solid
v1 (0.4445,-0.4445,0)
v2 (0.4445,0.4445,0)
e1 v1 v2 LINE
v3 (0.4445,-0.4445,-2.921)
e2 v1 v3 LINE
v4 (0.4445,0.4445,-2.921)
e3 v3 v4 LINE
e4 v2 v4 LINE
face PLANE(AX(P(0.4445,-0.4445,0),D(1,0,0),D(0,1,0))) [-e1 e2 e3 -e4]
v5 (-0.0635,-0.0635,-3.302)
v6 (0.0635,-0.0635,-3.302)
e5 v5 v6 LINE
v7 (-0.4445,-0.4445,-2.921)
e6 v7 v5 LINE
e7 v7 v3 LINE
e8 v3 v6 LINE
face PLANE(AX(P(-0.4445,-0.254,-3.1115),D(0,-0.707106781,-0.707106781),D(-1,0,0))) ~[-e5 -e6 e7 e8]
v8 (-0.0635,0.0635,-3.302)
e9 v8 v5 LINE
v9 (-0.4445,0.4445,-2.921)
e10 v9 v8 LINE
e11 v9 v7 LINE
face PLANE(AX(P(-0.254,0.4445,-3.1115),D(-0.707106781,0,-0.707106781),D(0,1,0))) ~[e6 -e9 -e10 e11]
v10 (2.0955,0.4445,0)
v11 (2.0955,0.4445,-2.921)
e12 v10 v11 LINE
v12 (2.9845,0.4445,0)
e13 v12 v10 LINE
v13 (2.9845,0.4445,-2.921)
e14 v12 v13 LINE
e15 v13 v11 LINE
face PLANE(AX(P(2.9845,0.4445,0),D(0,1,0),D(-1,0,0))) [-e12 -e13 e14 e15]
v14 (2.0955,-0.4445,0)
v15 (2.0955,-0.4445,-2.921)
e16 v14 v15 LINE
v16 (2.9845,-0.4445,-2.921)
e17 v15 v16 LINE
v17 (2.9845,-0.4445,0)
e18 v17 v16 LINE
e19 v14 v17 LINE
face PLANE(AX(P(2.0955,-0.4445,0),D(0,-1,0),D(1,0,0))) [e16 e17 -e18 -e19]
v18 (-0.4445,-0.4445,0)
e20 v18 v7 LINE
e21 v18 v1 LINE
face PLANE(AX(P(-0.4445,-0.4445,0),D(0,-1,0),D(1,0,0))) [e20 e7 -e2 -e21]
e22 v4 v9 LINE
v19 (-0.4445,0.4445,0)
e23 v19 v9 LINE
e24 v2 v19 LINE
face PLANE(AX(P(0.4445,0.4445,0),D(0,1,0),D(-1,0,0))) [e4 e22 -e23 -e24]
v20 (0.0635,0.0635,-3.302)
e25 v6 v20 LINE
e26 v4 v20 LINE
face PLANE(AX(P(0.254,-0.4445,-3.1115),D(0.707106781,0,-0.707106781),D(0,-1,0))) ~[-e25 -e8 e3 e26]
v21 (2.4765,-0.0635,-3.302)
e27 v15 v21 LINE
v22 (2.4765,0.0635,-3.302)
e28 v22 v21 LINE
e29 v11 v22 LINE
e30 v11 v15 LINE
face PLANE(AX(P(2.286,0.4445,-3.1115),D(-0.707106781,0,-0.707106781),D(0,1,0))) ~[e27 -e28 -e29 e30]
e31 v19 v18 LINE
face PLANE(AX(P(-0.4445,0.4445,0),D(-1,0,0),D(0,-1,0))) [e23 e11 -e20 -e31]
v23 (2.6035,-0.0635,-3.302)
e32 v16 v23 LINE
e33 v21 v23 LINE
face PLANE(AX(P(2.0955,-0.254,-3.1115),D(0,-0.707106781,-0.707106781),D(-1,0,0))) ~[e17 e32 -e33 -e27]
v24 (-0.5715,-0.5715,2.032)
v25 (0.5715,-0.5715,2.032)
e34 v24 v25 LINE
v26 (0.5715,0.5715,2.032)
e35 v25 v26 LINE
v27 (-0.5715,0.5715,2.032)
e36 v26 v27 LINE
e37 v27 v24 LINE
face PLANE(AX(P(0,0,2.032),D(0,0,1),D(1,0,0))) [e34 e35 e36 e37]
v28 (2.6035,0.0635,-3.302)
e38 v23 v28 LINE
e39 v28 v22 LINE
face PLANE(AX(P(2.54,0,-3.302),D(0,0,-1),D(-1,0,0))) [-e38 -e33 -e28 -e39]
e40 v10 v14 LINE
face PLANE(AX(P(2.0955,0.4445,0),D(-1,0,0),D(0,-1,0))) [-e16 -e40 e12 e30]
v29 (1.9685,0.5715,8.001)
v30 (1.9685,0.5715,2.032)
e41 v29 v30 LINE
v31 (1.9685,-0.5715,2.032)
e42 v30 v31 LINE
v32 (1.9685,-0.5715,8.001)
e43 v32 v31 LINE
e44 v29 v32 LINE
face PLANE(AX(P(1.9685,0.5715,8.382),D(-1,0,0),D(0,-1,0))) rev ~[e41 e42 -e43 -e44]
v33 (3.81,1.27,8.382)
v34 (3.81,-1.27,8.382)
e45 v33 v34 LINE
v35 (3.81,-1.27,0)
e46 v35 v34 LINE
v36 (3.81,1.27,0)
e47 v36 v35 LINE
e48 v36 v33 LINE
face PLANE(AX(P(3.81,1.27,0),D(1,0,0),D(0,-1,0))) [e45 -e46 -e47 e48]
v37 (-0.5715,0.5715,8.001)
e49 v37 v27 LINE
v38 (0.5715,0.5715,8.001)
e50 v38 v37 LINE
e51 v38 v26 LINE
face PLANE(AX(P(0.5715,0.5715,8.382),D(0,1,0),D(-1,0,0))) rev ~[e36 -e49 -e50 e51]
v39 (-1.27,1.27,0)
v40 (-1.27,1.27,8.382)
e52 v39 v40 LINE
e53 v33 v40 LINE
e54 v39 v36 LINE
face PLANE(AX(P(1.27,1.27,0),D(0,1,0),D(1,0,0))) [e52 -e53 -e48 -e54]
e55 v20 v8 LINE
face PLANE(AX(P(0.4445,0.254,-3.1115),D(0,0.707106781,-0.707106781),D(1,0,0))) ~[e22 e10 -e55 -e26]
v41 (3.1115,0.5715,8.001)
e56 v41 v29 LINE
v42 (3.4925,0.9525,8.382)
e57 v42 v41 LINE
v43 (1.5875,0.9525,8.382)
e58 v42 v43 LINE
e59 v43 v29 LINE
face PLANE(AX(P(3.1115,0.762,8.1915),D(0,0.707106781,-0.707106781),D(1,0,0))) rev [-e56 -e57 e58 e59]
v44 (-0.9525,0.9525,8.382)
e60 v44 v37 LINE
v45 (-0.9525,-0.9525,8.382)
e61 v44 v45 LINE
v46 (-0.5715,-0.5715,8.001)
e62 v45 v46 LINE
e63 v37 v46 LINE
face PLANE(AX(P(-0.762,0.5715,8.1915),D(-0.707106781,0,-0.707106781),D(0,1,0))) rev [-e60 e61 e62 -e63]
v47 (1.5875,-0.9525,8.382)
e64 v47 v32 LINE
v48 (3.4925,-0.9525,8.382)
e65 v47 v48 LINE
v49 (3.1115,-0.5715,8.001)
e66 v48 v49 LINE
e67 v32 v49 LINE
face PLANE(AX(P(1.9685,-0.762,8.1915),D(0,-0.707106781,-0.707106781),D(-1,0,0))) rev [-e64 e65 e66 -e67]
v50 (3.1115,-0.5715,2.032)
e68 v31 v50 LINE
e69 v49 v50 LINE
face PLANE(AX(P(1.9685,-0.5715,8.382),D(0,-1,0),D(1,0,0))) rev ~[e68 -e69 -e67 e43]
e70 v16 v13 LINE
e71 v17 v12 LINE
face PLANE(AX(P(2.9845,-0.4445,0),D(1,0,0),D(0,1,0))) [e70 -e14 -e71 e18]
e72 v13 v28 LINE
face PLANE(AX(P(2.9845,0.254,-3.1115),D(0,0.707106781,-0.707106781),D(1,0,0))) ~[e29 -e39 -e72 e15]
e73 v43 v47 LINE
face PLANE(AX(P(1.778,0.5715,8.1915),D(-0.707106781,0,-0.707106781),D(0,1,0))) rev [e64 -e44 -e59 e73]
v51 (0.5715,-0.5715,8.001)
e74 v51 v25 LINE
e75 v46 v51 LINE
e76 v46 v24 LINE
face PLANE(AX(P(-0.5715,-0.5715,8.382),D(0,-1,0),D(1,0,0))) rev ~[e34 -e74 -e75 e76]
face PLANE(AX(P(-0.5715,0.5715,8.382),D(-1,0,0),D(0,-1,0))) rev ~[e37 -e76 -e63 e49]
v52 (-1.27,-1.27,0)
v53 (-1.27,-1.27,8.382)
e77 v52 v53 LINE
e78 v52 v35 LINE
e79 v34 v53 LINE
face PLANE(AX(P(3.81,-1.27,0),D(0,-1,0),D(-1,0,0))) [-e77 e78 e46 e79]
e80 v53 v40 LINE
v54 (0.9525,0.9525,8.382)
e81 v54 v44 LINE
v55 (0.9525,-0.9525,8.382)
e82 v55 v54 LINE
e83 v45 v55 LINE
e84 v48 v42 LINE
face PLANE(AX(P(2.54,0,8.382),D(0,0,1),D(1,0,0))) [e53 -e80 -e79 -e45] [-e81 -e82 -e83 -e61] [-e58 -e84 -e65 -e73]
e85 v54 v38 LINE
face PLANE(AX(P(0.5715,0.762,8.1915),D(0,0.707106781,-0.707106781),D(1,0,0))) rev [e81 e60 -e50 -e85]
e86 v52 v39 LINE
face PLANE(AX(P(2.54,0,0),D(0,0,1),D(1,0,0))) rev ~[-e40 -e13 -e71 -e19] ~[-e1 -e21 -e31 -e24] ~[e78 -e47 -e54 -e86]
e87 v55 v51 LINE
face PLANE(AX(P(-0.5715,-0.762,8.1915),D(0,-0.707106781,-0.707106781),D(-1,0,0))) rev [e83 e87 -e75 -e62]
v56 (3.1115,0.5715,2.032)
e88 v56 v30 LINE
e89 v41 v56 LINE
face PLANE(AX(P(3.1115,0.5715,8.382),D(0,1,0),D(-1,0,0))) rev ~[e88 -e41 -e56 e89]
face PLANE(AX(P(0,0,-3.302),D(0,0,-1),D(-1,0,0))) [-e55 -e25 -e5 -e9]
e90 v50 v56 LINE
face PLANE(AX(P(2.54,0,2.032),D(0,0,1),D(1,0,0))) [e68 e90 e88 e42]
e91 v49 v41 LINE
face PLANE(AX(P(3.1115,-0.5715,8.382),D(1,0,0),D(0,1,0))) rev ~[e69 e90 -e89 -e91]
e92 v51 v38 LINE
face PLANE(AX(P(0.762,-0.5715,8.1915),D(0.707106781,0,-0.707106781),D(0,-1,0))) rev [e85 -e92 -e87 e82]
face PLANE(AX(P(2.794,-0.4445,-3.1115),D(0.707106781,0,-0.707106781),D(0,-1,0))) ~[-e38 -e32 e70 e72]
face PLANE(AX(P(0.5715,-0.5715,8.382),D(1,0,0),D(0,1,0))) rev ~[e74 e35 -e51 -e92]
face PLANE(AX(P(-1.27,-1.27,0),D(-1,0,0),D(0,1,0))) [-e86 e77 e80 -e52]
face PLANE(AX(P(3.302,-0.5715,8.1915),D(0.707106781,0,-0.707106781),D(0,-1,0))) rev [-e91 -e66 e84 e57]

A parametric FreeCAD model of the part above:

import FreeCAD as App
import Part
import Sketcher
Q = App.Units.Quantity


def edges_at(feature, points):
    """Names of the edges that pass closest to the given points."""
    edges = feature.Shape.Edges
    near = lambda p: min(range(len(edges)), key=lambda i: edges[i].distToShape(Part.Vertex(*p))[0])
    return sorted({f"Edge{near(p) + 1}" for p in points})


def add_polygon(sketch, points):
    """Adds a closed chain of lines whose ends are joined by coincident constraints."""
    first, n = sketch.GeometryCount, len(points)
    for a, b in zip(points, points[1:] + points[:1]):
        sketch.addGeometry(Part.LineSegment(App.Vector(*a, 0), App.Vector(*b, 0)), False)
    for i in range(n):
        sketch.addConstraint(Sketcher.Constraint("Coincident", first + i, 2, first + (i + 1) % n, 1))

doc = App.newDocument("Part")
body = doc.addObject("PartDesign::Body", "Body")

# Sketch on XY plane
sketch1 = body.newObject("Sketcher::SketchObject", "Sketch")
sketch1.AttachmentSupport = (doc.getObject("XY_Plane"), [""])
sketch1.MapMode = "FlatFace"
add_polygon(sketch1, [(-1.27, -1.27), (1.27, -1.27), (1.27, 1.27), (-1.27, 1.27)])  # lines 0-3
sketch1.addConstraint([
    Sketcher.Constraint("Horizontal", 0),
    Sketcher.Constraint("Vertical", 1),
    Sketcher.Constraint("Horizontal", 2),
    Sketcher.Constraint("Vertical", 3),
    Sketcher.Constraint("Symmetric", 0, 2, 2, 2, -1, 1),
    Sketcher.Constraint("Equal", 2, 1),
    Sketcher.Constraint("DistanceX", 0, 1, 0, 2, Q("0.1 in")),
])
pad1 = body.newObject("PartDesign::Pad", "Pad")
pad1.Profile = sketch1
pad1.Length = Q("0.33 in")

# Sketch on XY plane
sketch2 = body.newObject("Sketcher::SketchObject", "Sketch001")
sketch2.AttachmentSupport = (doc.getObject("XY_Plane"), [""])
sketch2.MapMode = "FlatFace"
sketch2.AttachmentOffset = App.Placement(App.Vector(0, 0, 0.33 * 25.4), App.Rotation())
add_polygon(sketch2, [(0.5715, -0.5715), (0.5715, 0.5715), (-0.5715, 0.5715), (-0.5715, -0.5715)])  # lines 0-3
sketch2.addConstraint([
    Sketcher.Constraint("Vertical", 0),
    Sketcher.Constraint("Horizontal", 1),
    Sketcher.Constraint("Vertical", 2),
    Sketcher.Constraint("Horizontal", 3),
    Sketcher.Constraint("Symmetric", 0, 2, 2, 2, -1, 1),
    Sketcher.Constraint("Equal", 3, 0),
    Sketcher.Constraint("DistanceX", 1, 2, 1, 1, Q("0.045 in")),
])
pocket1 = body.newObject("PartDesign::Pocket", "Pocket")
pocket1.Profile = sketch2
pocket1.Length = Q("0.25 in")
doc.recompute()

chamfer = body.newObject("PartDesign::Chamfer", "Chamfer")
chamfer.Base = (pocket1, edges_at(pocket1, [
    (0, 0.572, 8.382),
    (-0.572, 0, 8.382),
    (0, -0.572, 8.382),
    (0.572, 0, 8.382),
]))
chamfer.Size = Q("0.015 in")

# Sketch on XY plane
sketch3 = body.newObject("Sketcher::SketchObject", "Sketch002")
sketch3.AttachmentSupport = (doc.getObject("XY_Plane"), [""])
sketch3.MapMode = "FlatFace"
add_polygon(sketch3, [(0.4445, -0.4445), (-0.4445, -0.4445), (-0.4445, 0.4445), (0.4445, 0.4445)])  # lines 0-3
sketch3.addConstraint([
    Sketcher.Constraint("Horizontal", 0),
    Sketcher.Constraint("Vertical", 1),
    Sketcher.Constraint("Horizontal", 2),
    Sketcher.Constraint("Vertical", 3),
    Sketcher.Constraint("Symmetric", 0, 2, 2, 2, -1, 1),
    Sketcher.Constraint("Equal", 2, 1),
    Sketcher.Constraint("DistanceX", 0, 2, 0, 1, Q("0.035 in")),
])
pad2 = body.newObject("PartDesign::Pad", "Pad001")
pad2.Profile = sketch3
pad2.Length = Q("0.13 in")
pad2.Reversed = True
doc.recompute()

chamfer2 = body.newObject("PartDesign::Chamfer", "Chamfer001")
chamfer2.Base = (pad2, edges_at(pad2, [
    (0, 0.445, -3.302),
    (-0.445, 0, -3.302),
    (0, -0.445, -3.302),
    (0.445, 0, -3.302),
]))
chamfer2.Size = Q("0.015 in")
doc.recompute()

linearpattern = body.newObject("PartDesign::LinearPattern", "LinearPattern")
linearpattern.Originals = [pad1, pocket1, chamfer, pad2, chamfer2]
linearpattern.Direction = (doc.getObject("X_Axis"), [""])
linearpattern.Mode = "offset"
linearpattern.Offset = Q("0.1 in")
linearpattern.Occurrences = 2
body.Tip = linearpattern

doc.recompute()
